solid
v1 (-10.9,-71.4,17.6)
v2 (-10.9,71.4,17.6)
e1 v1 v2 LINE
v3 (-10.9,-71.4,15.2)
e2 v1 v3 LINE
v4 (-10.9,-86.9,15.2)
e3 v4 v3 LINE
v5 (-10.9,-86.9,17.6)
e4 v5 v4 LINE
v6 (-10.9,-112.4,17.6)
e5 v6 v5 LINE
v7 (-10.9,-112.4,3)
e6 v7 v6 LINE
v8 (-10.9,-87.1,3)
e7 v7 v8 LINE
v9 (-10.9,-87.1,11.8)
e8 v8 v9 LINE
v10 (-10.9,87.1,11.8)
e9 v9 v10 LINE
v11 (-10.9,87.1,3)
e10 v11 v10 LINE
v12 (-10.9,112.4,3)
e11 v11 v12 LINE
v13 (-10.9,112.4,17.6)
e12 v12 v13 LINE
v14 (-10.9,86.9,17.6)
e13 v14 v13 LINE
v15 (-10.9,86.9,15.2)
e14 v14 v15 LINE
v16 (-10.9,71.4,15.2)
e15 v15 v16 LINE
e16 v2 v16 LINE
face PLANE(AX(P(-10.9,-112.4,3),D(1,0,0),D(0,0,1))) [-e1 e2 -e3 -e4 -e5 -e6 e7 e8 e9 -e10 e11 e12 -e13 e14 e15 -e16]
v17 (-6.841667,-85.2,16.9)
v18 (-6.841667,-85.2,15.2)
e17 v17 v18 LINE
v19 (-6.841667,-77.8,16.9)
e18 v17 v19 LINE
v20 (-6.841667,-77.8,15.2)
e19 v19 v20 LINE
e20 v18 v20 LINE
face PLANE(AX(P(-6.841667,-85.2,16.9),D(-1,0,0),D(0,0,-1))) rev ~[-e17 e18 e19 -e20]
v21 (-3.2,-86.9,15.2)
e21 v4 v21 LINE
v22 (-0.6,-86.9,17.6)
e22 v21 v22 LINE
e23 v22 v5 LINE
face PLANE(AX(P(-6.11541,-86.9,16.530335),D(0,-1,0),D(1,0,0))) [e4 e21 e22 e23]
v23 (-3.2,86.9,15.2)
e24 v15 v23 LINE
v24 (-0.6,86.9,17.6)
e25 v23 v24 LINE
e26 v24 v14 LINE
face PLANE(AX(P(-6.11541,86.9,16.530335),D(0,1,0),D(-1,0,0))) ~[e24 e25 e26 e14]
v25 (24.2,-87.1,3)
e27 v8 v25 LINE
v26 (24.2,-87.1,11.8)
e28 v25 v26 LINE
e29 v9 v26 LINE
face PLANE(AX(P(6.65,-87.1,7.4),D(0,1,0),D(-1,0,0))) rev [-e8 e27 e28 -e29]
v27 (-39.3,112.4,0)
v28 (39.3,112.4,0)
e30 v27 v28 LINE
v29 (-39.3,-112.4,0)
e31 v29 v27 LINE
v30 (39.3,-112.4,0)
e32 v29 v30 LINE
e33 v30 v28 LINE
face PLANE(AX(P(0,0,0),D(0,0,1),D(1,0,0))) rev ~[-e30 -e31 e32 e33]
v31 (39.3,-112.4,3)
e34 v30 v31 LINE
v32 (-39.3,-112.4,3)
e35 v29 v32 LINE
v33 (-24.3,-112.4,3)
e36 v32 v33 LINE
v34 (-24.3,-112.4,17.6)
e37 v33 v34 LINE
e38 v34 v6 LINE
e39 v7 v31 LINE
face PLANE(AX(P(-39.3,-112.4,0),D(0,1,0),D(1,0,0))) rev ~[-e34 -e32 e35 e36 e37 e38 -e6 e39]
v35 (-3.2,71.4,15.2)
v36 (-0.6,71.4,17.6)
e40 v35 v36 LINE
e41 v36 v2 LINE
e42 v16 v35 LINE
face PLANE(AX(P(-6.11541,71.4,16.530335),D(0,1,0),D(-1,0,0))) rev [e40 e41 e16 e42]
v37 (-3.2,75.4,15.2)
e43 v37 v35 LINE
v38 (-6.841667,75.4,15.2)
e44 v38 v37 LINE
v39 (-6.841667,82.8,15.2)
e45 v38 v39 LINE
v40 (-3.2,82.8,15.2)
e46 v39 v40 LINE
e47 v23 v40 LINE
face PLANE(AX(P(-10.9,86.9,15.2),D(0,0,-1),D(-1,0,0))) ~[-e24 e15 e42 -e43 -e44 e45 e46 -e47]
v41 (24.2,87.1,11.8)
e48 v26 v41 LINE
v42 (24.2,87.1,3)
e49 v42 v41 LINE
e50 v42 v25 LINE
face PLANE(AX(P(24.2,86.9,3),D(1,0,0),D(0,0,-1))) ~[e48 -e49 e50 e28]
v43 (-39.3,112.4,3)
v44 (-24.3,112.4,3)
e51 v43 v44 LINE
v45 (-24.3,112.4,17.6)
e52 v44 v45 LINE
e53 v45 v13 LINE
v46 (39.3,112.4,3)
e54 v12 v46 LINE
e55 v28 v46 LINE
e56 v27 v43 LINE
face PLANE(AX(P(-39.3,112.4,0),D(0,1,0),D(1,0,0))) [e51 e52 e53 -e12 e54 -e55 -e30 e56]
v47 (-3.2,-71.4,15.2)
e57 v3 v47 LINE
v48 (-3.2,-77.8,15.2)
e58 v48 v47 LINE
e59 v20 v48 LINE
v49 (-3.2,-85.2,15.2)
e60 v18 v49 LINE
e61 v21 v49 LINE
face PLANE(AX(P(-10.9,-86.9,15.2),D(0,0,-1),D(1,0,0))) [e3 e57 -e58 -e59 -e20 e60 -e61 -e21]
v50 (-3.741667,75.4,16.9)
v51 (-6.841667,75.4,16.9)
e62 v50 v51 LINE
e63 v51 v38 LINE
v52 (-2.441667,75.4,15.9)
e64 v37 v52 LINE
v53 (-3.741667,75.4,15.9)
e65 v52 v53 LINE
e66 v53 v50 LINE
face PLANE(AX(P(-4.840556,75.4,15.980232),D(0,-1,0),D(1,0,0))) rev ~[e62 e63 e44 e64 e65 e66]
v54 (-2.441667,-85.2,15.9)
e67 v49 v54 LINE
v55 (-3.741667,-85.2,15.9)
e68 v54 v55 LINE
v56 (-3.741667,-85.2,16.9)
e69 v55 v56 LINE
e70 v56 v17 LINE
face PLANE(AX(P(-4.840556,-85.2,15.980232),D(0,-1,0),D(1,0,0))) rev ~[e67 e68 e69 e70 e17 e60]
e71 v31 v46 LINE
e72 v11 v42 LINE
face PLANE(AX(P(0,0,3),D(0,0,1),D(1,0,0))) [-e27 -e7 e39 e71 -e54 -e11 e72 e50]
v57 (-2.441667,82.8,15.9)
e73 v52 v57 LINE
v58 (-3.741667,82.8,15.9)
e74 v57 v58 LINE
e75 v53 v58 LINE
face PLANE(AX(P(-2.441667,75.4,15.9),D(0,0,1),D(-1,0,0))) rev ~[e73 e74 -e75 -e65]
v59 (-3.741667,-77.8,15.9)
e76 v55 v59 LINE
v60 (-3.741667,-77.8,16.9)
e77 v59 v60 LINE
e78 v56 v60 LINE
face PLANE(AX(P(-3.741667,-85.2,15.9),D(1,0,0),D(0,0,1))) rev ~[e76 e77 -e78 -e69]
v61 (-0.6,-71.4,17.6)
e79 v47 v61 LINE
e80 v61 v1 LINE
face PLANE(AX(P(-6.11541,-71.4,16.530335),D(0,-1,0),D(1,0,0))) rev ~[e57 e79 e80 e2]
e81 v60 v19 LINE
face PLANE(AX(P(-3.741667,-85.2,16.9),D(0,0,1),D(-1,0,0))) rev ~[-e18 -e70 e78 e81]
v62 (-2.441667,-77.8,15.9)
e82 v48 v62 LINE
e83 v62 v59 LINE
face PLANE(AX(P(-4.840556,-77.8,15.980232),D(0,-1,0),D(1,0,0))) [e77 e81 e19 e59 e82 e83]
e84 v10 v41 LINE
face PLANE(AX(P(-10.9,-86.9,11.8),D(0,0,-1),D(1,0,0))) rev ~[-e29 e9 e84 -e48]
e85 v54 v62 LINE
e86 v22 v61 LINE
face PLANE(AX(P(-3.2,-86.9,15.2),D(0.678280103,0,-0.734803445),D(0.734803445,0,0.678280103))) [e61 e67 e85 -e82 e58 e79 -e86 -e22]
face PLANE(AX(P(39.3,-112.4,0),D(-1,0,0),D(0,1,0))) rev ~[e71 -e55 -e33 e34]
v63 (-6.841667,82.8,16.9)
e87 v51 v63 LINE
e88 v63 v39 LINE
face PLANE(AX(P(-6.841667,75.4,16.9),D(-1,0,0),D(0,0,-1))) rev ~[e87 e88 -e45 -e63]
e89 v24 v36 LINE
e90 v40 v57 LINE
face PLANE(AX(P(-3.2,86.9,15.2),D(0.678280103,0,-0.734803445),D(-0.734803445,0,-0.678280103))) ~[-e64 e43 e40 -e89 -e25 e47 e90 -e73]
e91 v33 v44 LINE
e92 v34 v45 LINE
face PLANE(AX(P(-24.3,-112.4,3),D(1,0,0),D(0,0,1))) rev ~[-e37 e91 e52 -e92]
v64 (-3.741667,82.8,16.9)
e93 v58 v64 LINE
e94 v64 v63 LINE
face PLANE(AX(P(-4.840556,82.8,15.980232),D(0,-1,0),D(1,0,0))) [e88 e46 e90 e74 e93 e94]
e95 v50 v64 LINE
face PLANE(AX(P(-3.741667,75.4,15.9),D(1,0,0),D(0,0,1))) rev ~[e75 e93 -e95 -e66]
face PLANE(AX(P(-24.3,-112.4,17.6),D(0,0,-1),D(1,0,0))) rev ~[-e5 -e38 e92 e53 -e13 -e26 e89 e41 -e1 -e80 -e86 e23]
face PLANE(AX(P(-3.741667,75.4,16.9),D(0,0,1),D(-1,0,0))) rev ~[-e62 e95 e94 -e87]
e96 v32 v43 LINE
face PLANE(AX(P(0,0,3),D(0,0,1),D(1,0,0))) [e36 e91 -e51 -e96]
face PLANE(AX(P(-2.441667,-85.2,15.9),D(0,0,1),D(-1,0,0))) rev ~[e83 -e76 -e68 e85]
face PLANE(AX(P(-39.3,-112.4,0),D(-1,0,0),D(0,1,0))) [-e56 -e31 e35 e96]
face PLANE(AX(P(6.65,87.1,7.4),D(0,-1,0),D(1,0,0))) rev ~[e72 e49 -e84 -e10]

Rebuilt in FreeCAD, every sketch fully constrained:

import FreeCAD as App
import Part
import Sketcher


def add_polygon(sketch, points):
    """Adds a closed chain of lines whose ends are joined by coincident constraints."""
    first, n = sketch.GeometryCount, len(points)
    for a, b in zip(points, points[1:] + points[:1]):
        sketch.addGeometry(Part.LineSegment(App.Vector(*a, 0), App.Vector(*b, 0)), False)
    for i in range(n):
        sketch.addConstraint(Sketcher.Constraint("Coincident", first + i, 2, first + (i + 1) % n, 1))

doc = App.newDocument("Part")
params = doc.addObject("Spreadsheet::Sheet", "Params")
for row, (alias, value) in enumerate([
    ("sketch1_width", "78.6 mm"),
    ("sketch1_height", "224.8 mm"),
    ("pad1_length", "3 mm"),
    ("sketch2_width", "13.4 mm"),
    ("sketch2_height", "14.6 mm"),
    ("pad2_length", "224.8 mm"),
    ("sketch3_width", "35.1 mm"),
    ("sketch3_height", "8.8 mm"),
    ("pad3_length", "174 mm"),
    ("sketch4_width", "7.7 mm"),
    ("sketch4_width2", "10.3 mm"),
    ("sketch4_height", "2.4 mm"),
    ("pad4_length", "15.5 mm"),
    ("sketch5_height", "1 mm"),
    ("sketch5_width", "1.3 mm"),
    ("sketch5_width2", "3.1 mm"),
    ("sketch5_height2", "1.7 mm"),
    ("pocket1_length", "7.4 mm"),
    ("sketch6_height", "1 mm"),
    ("sketch6_width", "1.3 mm"),
    ("sketch6_width2", "3.1 mm"),
    ("sketch6_height2", "1.7 mm"),
    ("pocket2_length", "7.4 mm"),
], start=1):
    params.set(f"A{row}", alias)
    params.set(f"B{row}", "=" + value)
    params.setAlias(f"B{row}", alias)

body = doc.addObject("PartDesign::Body", "Body")

sketch1 = body.newObject("Sketcher::SketchObject", "Sketch")
sketch1.AttachmentSupport = (doc.getObject("XY_Plane"), [""])
sketch1.MapMode = "FlatFace"
add_polygon(sketch1, [(-39.3, 112.4), (-39.3, -112.4), (39.3, -112.4), (39.3, 112.4)])
sketch1.addConstraint([
    Sketcher.Constraint("Vertical", 0),
    Sketcher.Constraint("Horizontal", 1),
    Sketcher.Constraint("Vertical", 2),
    Sketcher.Constraint("Horizontal", 3),
    Sketcher.Constraint("Symmetric", 0, 2, 2, 2, -1, 1),
    Sketcher.Constraint("DistanceX", 1, 1, 1, 2, 78.6),
    Sketcher.Constraint("DistanceY", 0, 2, 0, 1, 224.8),
])
sketch1.setExpression("Constraints[9]", "Params.sketch1_width")
sketch1.setExpression("Constraints[10]", "Params.sketch1_height")
pad1 = body.newObject("PartDesign::Pad", "Pad")
pad1.Profile = sketch1
pad1.setExpression("Length", "Params.pad1_length")

sketch2 = body.newObject("Sketcher::SketchObject", "Sketch001")
sketch2.AttachmentSupport = (doc.getObject("XZ_Plane"), [""])
sketch2.MapMode = "FlatFace"
sketch2.AttachmentOffset = App.Placement(App.Vector(0, 0, 112.4), App.Rotation())
add_polygon(sketch2, [(-24.3, 17.6), (-24.3, 3), (-10.9, 3), (-10.9, 17.6)])
sketch2.addConstraint([
    Sketcher.Constraint("Vertical", 0),
    Sketcher.Constraint("Horizontal", 1),
    Sketcher.Constraint("Vertical", 2),
    Sketcher.Constraint("Horizontal", 3),
    Sketcher.Constraint("DistanceX", 1, 1, 1, 2, 13.4),
    Sketcher.Constraint("DistanceY", 0, 2, 0, 1, 14.6),
    Sketcher.Constraint("DistanceY", -1, 1, 0, 2, 3.0),
    Sketcher.Constraint("DistanceX", 0, 2, -1, 1, 24.3),
])
sketch2.setExpression("Constraints[8]", "Params.sketch2_width")
sketch2.setExpression("Constraints[9]", "Params.sketch2_height")
pad2 = body.newObject("PartDesign::Pad", "Pad001")
pad2.Profile = sketch2
pad2.setExpression("Length", "Params.pad2_length")
pad2.Reversed = True

sketch3 = body.newObject("Sketcher::SketchObject", "Sketch002")
sketch3.AttachmentSupport = (doc.getObject("XZ_Plane"), [""])
sketch3.MapMode = "FlatFace"
sketch3.AttachmentOffset = App.Placement(App.Vector(0, 0, 86.9), App.Rotation())
add_polygon(sketch3, [(-10.9, 11.8), (-10.9, 3), (24.2, 3), (24.2, 11.8)])
sketch3.addConstraint([
    Sketcher.Constraint("Vertical", 0),
    Sketcher.Constraint("Horizontal", 1),
    Sketcher.Constraint("Vertical", 2),
    Sketcher.Constraint("Horizontal", 3),
    Sketcher.Constraint("DistanceX", 1, 1, 1, 2, 35.1),
    Sketcher.Constraint("DistanceY", 0, 2, 0, 1, 8.8),
    Sketcher.Constraint("DistanceY", -1, 1, 0, 2, 3.0),
    Sketcher.Constraint("DistanceX", 0, 2, -1, 1, 10.9),
])
sketch3.setExpression("Constraints[8]", "Params.sketch3_width")
sketch3.setExpression("Constraints[9]", "Params.sketch3_height")
pad3 = body.newObject("PartDesign::Pad", "Pad002")
pad3.Profile = sketch3
pad3.setExpression("Length", "Params.pad3_length")
pad3.Reversed = True

sketch4 = body.newObject("Sketcher::SketchObject", "Sketch003")
sketch4.AttachmentSupport = (doc.getObject("XZ_Plane"), [""])
sketch4.MapMode = "FlatFace"
sketch4.AttachmentOffset = App.Placement(App.Vector(0, 0, 86.9), App.Rotation())
add_polygon(sketch4, [(-10.9, 17.6), (-10.9, 15.2), (-3.2, 15.2), (-0.6, 17.6)])
sketch4.addConstraint([
    Sketcher.Constraint("Vertical", 0),
    Sketcher.Constraint("Horizontal", 1),
    Sketcher.Constraint("Horizontal", 3),
    Sketcher.Constraint("DistanceX", 1, 1, 1, 2, 7.7),
    Sketcher.Constraint("DistanceX", 3, 2, 3, 1, 10.3),
    Sketcher.Constraint("DistanceY", 0, 2, 0, 1, 2.4),
    Sketcher.Constraint("DistanceX", 0, 2, -1, 1, 10.9),
    Sketcher.Constraint("DistanceY", -1, 1, 0, 2, 15.2),
])
sketch4.setExpression("Constraints[7]", "Params.sketch4_width")
sketch4.setExpression("Constraints[8]", "Params.sketch4_width2")
sketch4.setExpression("Constraints[9]", "Params.sketch4_height")
pad4 = body.newObject("PartDesign::Pad", "Pad003")
pad4.Profile = sketch4
pad4.setExpression("Length", "Params.pad4_length")
pad4.Reversed = True
body2 = doc.addObject("PartDesign::Body", "Body001")
doc.recompute()

body2.BaseFeature = body
doc.recompute()

mirroring = doc.addObject("Part::Mirroring", "Mirroring")
mirroring.Source = body
mirroring.Base = App.Vector(0, 0, 0)
mirroring.Normal = App.Vector(0, -1, 0)
body3 = doc.addObject("PartDesign::Body", "Body002")
body3.BaseFeature = mirroring
boolean = body2.newObject("PartDesign::Boolean", "Boolean")
boolean.Type = "Fuse"
boolean.addObjects([body3])
doc.recompute()

sketch5 = body2.newObject("Sketcher::SketchObject", "Sketch004")
sketch5.AttachmentSupport = (doc.getObject("XZ_Plane001"), [""])
sketch5.MapMode = "FlatFace"
sketch5.AttachmentOffset = App.Placement(App.Vector(0, 0, 85.2), App.Rotation())
add_polygon(sketch5, [(-6.841667, 16.9), (-6.841667, 15.2), (-3.2, 15.2), (-2.441667, 15.9), (-3.741667, 15.9), (-3.741667, 16.9)])
sketch5.addConstraint([
    Sketcher.Constraint("Vertical", 0),
    Sketcher.Constraint("Horizontal", 1),
    Sketcher.Constraint("Horizontal", 3),
    Sketcher.Constraint("Vertical", 4),
    Sketcher.Constraint("Horizontal", 5),
    Sketcher.Constraint("DistanceY", 4, 1, 4, 2, 1.0),
    Sketcher.Constraint("DistanceX", 3, 2, 3, 1, 1.3),
    Sketcher.Constraint("DistanceX", 5, 2, 5, 1, 3.1),
    Sketcher.Constraint("DistanceY", 0, 2, 0, 1, 1.7),
    Sketcher.Constraint("DistanceY", -1, 1, 0, 2, 15.2),
    Sketcher.Constraint("DistanceX", 1, 2, -1, 1, 3.2),
    Sketcher.Constraint("DistanceX", 1, 1, 1, 2, 3.641667),
])
sketch5.setExpression("Constraints[11]", "Params.sketch5_height")
sketch5.setExpression("Constraints[12]", "Params.sketch5_width")
sketch5.setExpression("Constraints[13]", "Params.sketch5_width2")
sketch5.setExpression("Constraints[14]", "Params.sketch5_height2")
pocket1 = body2.newObject("PartDesign::Pocket", "Pocket")
pocket1.Profile = sketch5
pocket1.setExpression("Length", "Params.pocket1_length")

sketch6 = body2.newObject("Sketcher::SketchObject", "Sketch005")
sketch6.AttachmentSupport = (doc.getObject("XZ_Plane001"), [""])
sketch6.MapMode = "FlatFace"
sketch6.AttachmentOffset = App.Placement(App.Vector(0, 0, -75.4), App.Rotation())
add_polygon(sketch6, [(-6.841667, 16.9), (-6.841667, 15.2), (-3.2, 15.2), (-2.441667, 15.9), (-3.741667, 15.9), (-3.741667, 16.9)])
sketch6.addConstraint([
    Sketcher.Constraint("Vertical", 0),
    Sketcher.Constraint("Horizontal", 1),
    Sketcher.Constraint("Horizontal", 3),
    Sketcher.Constraint("Vertical", 4),
    Sketcher.Constraint("Horizontal", 5),
    Sketcher.Constraint("DistanceY", 4, 1, 4, 2, 1.0),
    Sketcher.Constraint("DistanceX", 3, 2, 3, 1, 1.3),
    Sketcher.Constraint("DistanceX", 5, 2, 5, 1, 3.1),
    Sketcher.Constraint("DistanceY", 0, 2, 0, 1, 1.7),
    Sketcher.Constraint("DistanceY", -1, 1, 0, 2, 15.2),
    Sketcher.Constraint("DistanceX", 1, 2, -1, 1, 3.2),
    Sketcher.Constraint("DistanceX", 1, 1, 1, 2, 3.641667),
])
sketch6.setExpression("Constraints[11]", "Params.sketch6_height")
sketch6.setExpression("Constraints[12]", "Params.sketch6_width")
sketch6.setExpression("Constraints[13]", "Params.sketch6_width2")
sketch6.setExpression("Constraints[14]", "Params.sketch6_height2")
pocket2 = body2.newObject("PartDesign::Pocket", "Pocket001")
pocket2.Profile = sketch6
pocket2.setExpression("Length", "Params.pocket2_length")
mirroring.Visibility = False

doc.recompute()
